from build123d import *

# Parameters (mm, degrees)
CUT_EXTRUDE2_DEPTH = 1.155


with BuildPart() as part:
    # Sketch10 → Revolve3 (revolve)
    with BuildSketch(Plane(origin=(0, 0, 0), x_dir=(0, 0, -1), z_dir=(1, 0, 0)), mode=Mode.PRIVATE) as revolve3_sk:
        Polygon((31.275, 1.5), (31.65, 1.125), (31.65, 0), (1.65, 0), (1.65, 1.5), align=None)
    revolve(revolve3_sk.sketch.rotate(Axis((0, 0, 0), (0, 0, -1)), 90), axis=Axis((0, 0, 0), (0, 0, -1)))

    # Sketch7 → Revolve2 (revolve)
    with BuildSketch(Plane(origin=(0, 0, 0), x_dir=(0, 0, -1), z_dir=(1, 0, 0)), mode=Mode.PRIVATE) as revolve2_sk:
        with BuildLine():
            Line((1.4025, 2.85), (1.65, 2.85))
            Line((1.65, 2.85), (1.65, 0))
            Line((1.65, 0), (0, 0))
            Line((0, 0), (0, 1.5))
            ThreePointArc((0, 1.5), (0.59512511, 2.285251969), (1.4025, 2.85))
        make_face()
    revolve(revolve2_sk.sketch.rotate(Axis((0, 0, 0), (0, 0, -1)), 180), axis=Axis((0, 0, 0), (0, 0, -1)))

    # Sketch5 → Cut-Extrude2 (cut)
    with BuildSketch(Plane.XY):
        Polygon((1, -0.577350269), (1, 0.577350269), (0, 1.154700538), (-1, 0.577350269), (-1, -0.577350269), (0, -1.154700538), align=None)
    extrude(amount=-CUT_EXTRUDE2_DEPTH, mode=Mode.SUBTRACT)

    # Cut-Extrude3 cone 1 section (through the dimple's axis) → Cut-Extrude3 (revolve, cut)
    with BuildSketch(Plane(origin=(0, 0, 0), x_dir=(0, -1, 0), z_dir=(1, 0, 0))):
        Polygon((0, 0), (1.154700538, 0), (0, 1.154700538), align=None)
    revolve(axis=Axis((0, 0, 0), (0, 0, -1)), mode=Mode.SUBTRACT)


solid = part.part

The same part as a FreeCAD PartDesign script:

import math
import FreeCAD as App
import Part
import Sketcher
from FreeCAD import Vector
Q = App.Units.Quantity


def add_polygon(sketch, points):
    """Adds a closed chain of lines whose ends are joined by coincident constraints."""
    first, n = sketch.GeometryCount, len(points)
    for a, b in zip(points, points[1:] + points[:1]):
        sketch.addGeometry(Part.LineSegment(App.Vector(*a, 0), App.Vector(*b, 0)), False)
    for i in range(n):
        sketch.addConstraint(Sketcher.Constraint("Coincident", first + i, 2, first + (i + 1) % n, 1))

doc = App.newDocument("Part")
body = doc.addObject("PartDesign::Body", "Body")

sketch1 = body.newObject("Sketcher::SketchObject", "Sketch")
sketch1.AttachmentSupport = (doc.getObject("YZ_Plane"), [""])
sketch1.MapMode = "FlatFace"
add_polygon(sketch1, [(1.125, -31.65), (1.5, -31.275), (1.5, -1.65), (0, -1.65), (0, -31.65)])
sketch1.addConstraint([
    Sketcher.Constraint("Vertical", 1),
    Sketcher.Constraint("Horizontal", 2),
    Sketcher.Constraint("Vertical", 3),
    Sketcher.Constraint("Horizontal", 4),
    Sketcher.Constraint("PointOnObject", 2, 2, -2),
    Sketcher.Constraint("DistanceY", 3, 2, 3, 1, Q("30 mm")),
    Sketcher.Constraint("Angle", 0, Q("45 deg")),
    Sketcher.Constraint("DistanceX", 2, 2, 2, 1, Q("1.5 mm")),
    Sketcher.Constraint("DistanceX", 4, 1, 4, 2, Q("1.125 mm")),
    Sketcher.Constraint("DistanceY", 1, 2, -1, 1, Q("1.65 mm")),
])
revolution = body.newObject("PartDesign::Revolution", "Revolution")
revolution.Profile = sketch1
revolution.ReferenceAxis = (sketch1, ["V_Axis"])
revolution.Angle = 360

sketch2 = body.newObject("Sketcher::SketchObject", "Sketch001")
sketch2.AttachmentSupport = (doc.getObject("YZ_Plane"), [""])
sketch2.MapMode = "FlatFace"
sketch2.addGeometry([
    Part.LineSegment(Vector(2.85, -1.65, 0), Vector(2.85, -1.4025, 0)),
    Part.ArcOfCircle(Part.Circle(Vector(0, -2.794833, 0), Vector(0, 0, 1), 3.171922), math.radians(26.03726), math.radians(61.777335)),
    Part.LineSegment(Vector(1.5, 0, 0), Vector(0, 0, 0)),
    Part.LineSegment(Vector(0, 0, 0), Vector(0, -1.65, 0)),
    Part.LineSegment(Vector(0, -1.65, 0), Vector(2.85, -1.65, 0)),
], False)
sketch2.addConstraint([
    Sketcher.Constraint("Coincident", 0, 2, 1, 1),
    Sketcher.Constraint("Coincident", 1, 2, 2, 1),
    Sketcher.Constraint("Coincident", 2, 2, 3, 1),
    Sketcher.Constraint("Coincident", 3, 2, 4, 1),
    Sketcher.Constraint("Coincident", 4, 2, 0, 1),
    Sketcher.Constraint("Vertical", 0),
    Sketcher.Constraint("Horizontal", 2),
    Sketcher.Constraint("Vertical", 3),
    Sketcher.Constraint("Horizontal", 4),
    Sketcher.Constraint("Coincident", 2, 2, -1, 1),
    Sketcher.Constraint("PointOnObject", 1, 3, -2),
    Sketcher.Constraint("DistanceX", 2, 2, 2, 1, Q("1.5 mm")),
    Sketcher.Constraint("DistanceX", 4, 1, 4, 2, Q("2.85 mm")),
    Sketcher.Constraint("DistanceY", 3, 2, 3, 1, Q("1.65 mm")),
    Sketcher.Constraint("DistanceY", 0, 1, 0, 2, Q("0.2475 mm")),
])
revolution2 = body.newObject("PartDesign::Revolution", "Revolution001")
revolution2.Profile = sketch2
revolution2.ReferenceAxis = (sketch2, ["V_Axis"])
revolution2.Angle = 360

sketch3 = body.newObject("Sketcher::SketchObject", "Sketch002")
sketch3.AttachmentSupport = (doc.getObject("XY_Plane"), [""])
sketch3.MapMode = "FlatFace"
add_polygon(sketch3, [(1, -0.57735), (1, 0.57735), (0, 1.154701), (-1, 0.57735), (-1, -0.57735), (0, -1.154701)])
sketch3.addConstraint([
    Sketcher.Constraint("Vertical", 0),
    Sketcher.Constraint("Vertical", 3),
    Sketcher.Constraint("Symmetric", 0, 2, 3, 2, -1, 1),
    Sketcher.Constraint("Symmetric", 1, 2, 4, 2, -1, 1),
    Sketcher.Constraint("PointOnObject", 1, 2, -2),
    Sketcher.Constraint("Parallel", 2, 5),
    Sketcher.Constraint("Horizontal", 0, 2, 2, 2),
    Sketcher.Constraint("Angle", 1, Q("150 deg")),
    Sketcher.Constraint("DistanceX", -1, 1, 0, 2, Q("1 mm")),
    Sketcher.Constraint("DistanceY", 0, 1, 0, 2, Q("1.154701 mm")),
])
pocket1 = body.newObject("PartDesign::Pocket", "Pocket")
pocket1.Profile = sketch3
pocket1.Length = 1.155

sketch4 = body.newObject("Sketcher::SketchObject", "Sketch003")
sketch4.AttachmentSupport = (doc.getObject("YZ_Plane"), [""])
sketch4.MapMode = "FlatFace"
add_polygon(sketch4, [(0, 0), (-1.154701, 0), (0, -1.154701)])
sketch4.addConstraint([
    Sketcher.Constraint("Horizontal", 0),
    Sketcher.Constraint("Vertical", 2),
    Sketcher.Constraint("Coincident", 2, 2, -1, 1),
    Sketcher.Constraint("Equal", 0, 2),
    Sketcher.Constraint("DistanceX", 0, 2, 0, 1, Q("1.154701 mm")),
])
groove = body.newObject("PartDesign::Groove", "Groove")
groove.Profile = sketch4
groove.ReferenceAxis = (sketch4, ["V_Axis"])
groove.Angle = 360

doc.recompute()
